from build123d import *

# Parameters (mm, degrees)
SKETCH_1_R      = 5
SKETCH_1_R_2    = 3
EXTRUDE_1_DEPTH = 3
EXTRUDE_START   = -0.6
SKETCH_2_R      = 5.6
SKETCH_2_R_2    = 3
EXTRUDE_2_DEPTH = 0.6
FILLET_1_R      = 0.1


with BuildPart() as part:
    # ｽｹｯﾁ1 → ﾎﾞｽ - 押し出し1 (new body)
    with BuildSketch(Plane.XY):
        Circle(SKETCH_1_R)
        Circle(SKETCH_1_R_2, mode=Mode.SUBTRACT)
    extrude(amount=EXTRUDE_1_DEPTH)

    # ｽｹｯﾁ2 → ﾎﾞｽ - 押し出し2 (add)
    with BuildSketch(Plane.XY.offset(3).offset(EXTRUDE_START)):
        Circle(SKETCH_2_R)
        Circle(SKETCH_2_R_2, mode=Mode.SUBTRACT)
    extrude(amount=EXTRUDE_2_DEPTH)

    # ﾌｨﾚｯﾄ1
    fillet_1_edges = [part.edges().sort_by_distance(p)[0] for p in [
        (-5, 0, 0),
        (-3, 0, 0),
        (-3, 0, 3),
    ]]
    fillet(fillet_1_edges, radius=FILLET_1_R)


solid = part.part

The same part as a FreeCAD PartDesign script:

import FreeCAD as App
import Part
import Sketcher

V = App.Vector


def edges_at(feature, points):
    """Names of the edges that pass closest to the given points."""
    edges = feature.Shape.Edges
    near = lambda p: min(range(len(edges)), key=lambda i: edges[i].distToShape(Part.Vertex(*p))[0])
    return sorted({f"Edge{near(p) + 1}" for p in points})

doc = App.newDocument("Part")
body = doc.addObject("PartDesign::Body", "Body")

sketch1 = doc.addObject("Sketcher::SketchObject", "Sketch")
body.addObject(sketch1)
sketch1.AttachmentSupport = (doc.XY_Plane, [""])
sketch1.MapMode = "FlatFace"
sketch1.addGeometry([
    Part.Circle(V(0, 0, 0), V(0, 0, 1), 5),
    Part.Circle(V(0, 0, 0), V(0, 0, 1), 3),
], False)
sketch1.addConstraint([
    Sketcher.Constraint("Coincident", 0, 3, -1, 1),
    Sketcher.Constraint("Coincident", 1, 3, -1, 1),
    Sketcher.Constraint("Diameter", 0, 10.0),
    Sketcher.Constraint("Diameter", 1, 6.0),
])
pad1 = doc.addObject("PartDesign::Pad", "Pad")
body.addObject(pad1)
pad1.Profile = sketch1
pad1.Length = 3

sketch2 = doc.addObject("Sketcher::SketchObject", "Sketch001")
body.addObject(sketch2)
sketch2.AttachmentSupport = (doc.XY_Plane, [""])
sketch2.MapMode = "FlatFace"
sketch2.AttachmentOffset = App.Placement(V(0, 0, 2.4), App.Rotation())
sketch2.addGeometry([
    Part.Circle(V(0, 0, 0), V(0, 0, 1), 5.6),
    Part.Circle(V(0, 0, 0), V(0, 0, 1), 3),
], False)
sketch2.addConstraint([
    Sketcher.Constraint("Coincident", 0, 3, -1, 1),
    Sketcher.Constraint("Coincident", 1, 3, -1, 1),
    Sketcher.Constraint("Diameter", 1, 6.0),
    Sketcher.Constraint("Diameter", 0, 11.2),
])
pad2 = doc.addObject("PartDesign::Pad", "Pad001")
body.addObject(pad2)
pad2.Profile = sketch2
pad2.Length = 0.6
doc.recompute()

fillet = doc.addObject("PartDesign::Fillet", "Fillet")
body.addObject(fillet)
fillet.Base = (pad2, edges_at(pad2, [(-5, 0, 0), (-3, 0, 0), (-3, 0, 3)]))
fillet.Radius = 0.1

doc.recompute()
